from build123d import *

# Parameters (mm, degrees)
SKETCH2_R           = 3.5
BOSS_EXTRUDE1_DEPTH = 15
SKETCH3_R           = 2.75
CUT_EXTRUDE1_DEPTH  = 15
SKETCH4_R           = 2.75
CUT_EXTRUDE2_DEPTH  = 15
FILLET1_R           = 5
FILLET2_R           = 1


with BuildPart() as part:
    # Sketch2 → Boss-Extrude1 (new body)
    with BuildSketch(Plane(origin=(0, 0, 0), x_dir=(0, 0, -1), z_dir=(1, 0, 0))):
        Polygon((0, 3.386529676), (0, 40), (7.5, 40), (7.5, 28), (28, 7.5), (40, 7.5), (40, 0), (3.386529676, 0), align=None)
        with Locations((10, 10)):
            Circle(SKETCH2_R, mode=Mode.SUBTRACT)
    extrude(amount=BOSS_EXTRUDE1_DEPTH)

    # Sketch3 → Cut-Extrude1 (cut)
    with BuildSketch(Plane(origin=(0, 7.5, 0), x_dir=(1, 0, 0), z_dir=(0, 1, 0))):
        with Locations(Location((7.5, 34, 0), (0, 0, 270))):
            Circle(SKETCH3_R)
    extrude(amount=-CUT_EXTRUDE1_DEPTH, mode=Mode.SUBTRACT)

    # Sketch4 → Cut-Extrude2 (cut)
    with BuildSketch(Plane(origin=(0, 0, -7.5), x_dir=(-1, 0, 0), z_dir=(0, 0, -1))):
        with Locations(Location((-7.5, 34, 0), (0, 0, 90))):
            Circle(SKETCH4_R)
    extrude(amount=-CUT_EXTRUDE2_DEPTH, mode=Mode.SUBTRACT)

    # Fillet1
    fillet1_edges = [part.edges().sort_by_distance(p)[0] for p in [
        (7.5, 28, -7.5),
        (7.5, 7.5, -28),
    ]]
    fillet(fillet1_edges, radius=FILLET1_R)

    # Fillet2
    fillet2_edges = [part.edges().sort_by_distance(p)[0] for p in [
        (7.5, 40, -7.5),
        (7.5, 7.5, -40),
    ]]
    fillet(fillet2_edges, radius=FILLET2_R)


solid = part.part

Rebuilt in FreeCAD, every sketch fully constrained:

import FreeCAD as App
import Part
import Sketcher
Q = App.Units.Quantity


def edges_at(feature, points):
    """Names of the edges that pass closest to the given points."""
    edges = feature.Shape.Edges
    near = lambda p: min(range(len(edges)), key=lambda i: edges[i].distToShape(Part.Vertex(*p))[0])
    return sorted({f"Edge{near(p) + 1}" for p in points})

doc = App.newDocument("Part")
body = doc.addObject("PartDesign::Body", "Body")

sketch1 = body.newObject("Sketcher::SketchObject", "Sketch")
sketch1.AttachmentSupport = (doc.getObject("YZ_Plane"), [""])
sketch1.MapMode = "FlatFace"
sketch1.addGeometry(Part.LineSegment(App.Vector(40, 0, 0), App.Vector(3.4, 0, 0)), False)
sketch1.addGeometry(Part.LineSegment(App.Vector(3.4, 0, 0), App.Vector(0, -3.4, 0)), False)
sketch1.addGeometry(Part.LineSegment(App.Vector(0, -3.4, 0), App.Vector(0, -40, 0)), False)
sketch1.addGeometry(Part.LineSegment(App.Vector(0, -40, 0), App.Vector(7.5, -40, 0)), False)
sketch1.addGeometry(Part.LineSegment(App.Vector(7.5, -40, 0), App.Vector(7.5, -28, 0)), False)
sketch1.addGeometry(Part.LineSegment(App.Vector(7.5, -28, 0), App.Vector(28, -7.5, 0)), False)
sketch1.addGeometry(Part.LineSegment(App.Vector(28, -7.5, 0), App.Vector(40, -7.5, 0)), False)
sketch1.addGeometry(Part.LineSegment(App.Vector(40, -7.5, 0), App.Vector(40, 0, 0)), False)
sketch1.addGeometry(Part.Circle(App.Vector(10, -10, 0), App.Vector(0, 0, 1), 3.5), False)
sketch1.addConstraint(Sketcher.Constraint("Coincident", 0, 2, 1, 1))
sketch1.addConstraint(Sketcher.Constraint("Coincident", 1, 2, 2, 1))
sketch1.addConstraint(Sketcher.Constraint("Coincident", 2, 2, 3, 1))
sketch1.addConstraint(Sketcher.Constraint("Coincident", 3, 2, 4, 1))
sketch1.addConstraint(Sketcher.Constraint("Coincident", 4, 2, 5, 1))
sketch1.addConstraint(Sketcher.Constraint("Coincident", 5, 2, 6, 1))
sketch1.addConstraint(Sketcher.Constraint("Coincident", 6, 2, 7, 1))
sketch1.addConstraint(Sketcher.Constraint("Coincident", 7, 2, 0, 1))
sketch1.addConstraint(Sketcher.Constraint("Horizontal", 0))
sketch1.addConstraint(Sketcher.Constraint("Vertical", 2))
sketch1.addConstraint(Sketcher.Constraint("Horizontal", 3))
sketch1.addConstraint(Sketcher.Constraint("Vertical", 4))
sketch1.addConstraint(Sketcher.Constraint("Horizontal", 6))
sketch1.addConstraint(Sketcher.Constraint("Vertical", 7))
sketch1.addConstraint(Sketcher.Constraint("PointOnObject", 0, 2, -1))
sketch1.addConstraint(Sketcher.Constraint("PointOnObject", 1, 2, -2))
sketch1.addConstraint(Sketcher.Constraint("Parallel", 1, 5))
sketch1.addConstraint(Sketcher.Constraint("Equal", 0, 2))
sketch1.addConstraint(Sketcher.Constraint("Equal", 6, 4))
sketch1.addConstraint(Sketcher.Constraint("Equal", 3, 7))
sketch1.addConstraint(Sketcher.Constraint("Diameter", 8, Q("7 mm")))
sketch1.addConstraint(Sketcher.Constraint("DistanceX", 6, 1, 6, 2, Q("12 mm")))
sketch1.addConstraint(Sketcher.Constraint("DistanceX", 3, 1, 3, 2, Q("7.5 mm")))
sketch1.addConstraint(Sketcher.Constraint("DistanceX", -1, 1, 8, 3, Q("10 mm")))
sketch1.addConstraint(Sketcher.Constraint("DistanceY", 8, 3, -1, 1, Q("10 mm")))
sketch1.addConstraint(Sketcher.Constraint("DistanceY", 2, 2, -1, 1, Q("40 mm")))
sketch1.addConstraint(Sketcher.Constraint("DistanceX", 0, 2, 0, 1, Q("36.61347 mm")))
pad1 = body.newObject("PartDesign::Pad", "Pad")
pad1.Profile = sketch1
pad1.Length = 15

sketch2 = body.newObject("Sketcher::SketchObject", "Sketch001")
sketch2.AttachmentSupport = (doc.getObject("XZ_Plane"), [""])
sketch2.MapMode = "FlatFace"
sketch2.AttachmentOffset = App.Placement(App.Vector(0, 0, -7.5), App.Rotation())
sketch2.addGeometry(Part.Circle(App.Vector(7.5, -34, 0), App.Vector(0, 0, 1), 2.8), False)
sketch2.addConstraint(Sketcher.Constraint("Diameter", 0, Q("5.5 mm")))
sketch2.addConstraint(Sketcher.Constraint("DistanceY", 0, 3, -1, 1, Q("34 mm")))
sketch2.addConstraint(Sketcher.Constraint("DistanceX", -1, 1, 0, 3, Q("7.5 mm")))
pocket1 = body.newObject("PartDesign::Pocket", "Pocket")
pocket1.Profile = sketch2
pocket1.Length = 15
pocket1.Reversed = True

sketch3 = body.newObject("Sketcher::SketchObject", "Sketch002")
sketch3.AttachmentSupport = (doc.getObject("XY_Plane"), [""])
sketch3.MapMode = "FlatFace"
sketch3.AttachmentOffset = App.Placement(App.Vector(0, 0, -7.5), App.Rotation())
sketch3.addGeometry(Part.Circle(App.Vector(7.5, 34, 0), App.Vector(0, 0, 1), 2.8), False)
sketch3.addConstraint(Sketcher.Constraint("Diameter", 0, Q("5.5 mm")))
sketch3.addConstraint(Sketcher.Constraint("DistanceY", -1, 1, 0, 3, Q("34 mm")))
sketch3.addConstraint(Sketcher.Constraint("DistanceX", -1, 1, 0, 3, Q("7.5 mm")))
pocket2 = body.newObject("PartDesign::Pocket", "Pocket001")
pocket2.Profile = sketch3
pocket2.Length = 15
pocket2.Reversed = True
doc.recompute()

fillet = body.newObject("PartDesign::Fillet", "Fillet")
fillet.Base = (pocket2, edges_at(pocket2, [(7.5, 28, -7.5), (7.5, 7.5, -28)]))
fillet.Radius = 5
doc.recompute()

fillet2 = body.newObject("PartDesign::Fillet", "Fillet001")
fillet2.Base = (fillet, edges_at(fillet, [(7.5, 40, -7.5), (7.5, 7.5, -40)]))
fillet2.Radius = 1

doc.recompute()
